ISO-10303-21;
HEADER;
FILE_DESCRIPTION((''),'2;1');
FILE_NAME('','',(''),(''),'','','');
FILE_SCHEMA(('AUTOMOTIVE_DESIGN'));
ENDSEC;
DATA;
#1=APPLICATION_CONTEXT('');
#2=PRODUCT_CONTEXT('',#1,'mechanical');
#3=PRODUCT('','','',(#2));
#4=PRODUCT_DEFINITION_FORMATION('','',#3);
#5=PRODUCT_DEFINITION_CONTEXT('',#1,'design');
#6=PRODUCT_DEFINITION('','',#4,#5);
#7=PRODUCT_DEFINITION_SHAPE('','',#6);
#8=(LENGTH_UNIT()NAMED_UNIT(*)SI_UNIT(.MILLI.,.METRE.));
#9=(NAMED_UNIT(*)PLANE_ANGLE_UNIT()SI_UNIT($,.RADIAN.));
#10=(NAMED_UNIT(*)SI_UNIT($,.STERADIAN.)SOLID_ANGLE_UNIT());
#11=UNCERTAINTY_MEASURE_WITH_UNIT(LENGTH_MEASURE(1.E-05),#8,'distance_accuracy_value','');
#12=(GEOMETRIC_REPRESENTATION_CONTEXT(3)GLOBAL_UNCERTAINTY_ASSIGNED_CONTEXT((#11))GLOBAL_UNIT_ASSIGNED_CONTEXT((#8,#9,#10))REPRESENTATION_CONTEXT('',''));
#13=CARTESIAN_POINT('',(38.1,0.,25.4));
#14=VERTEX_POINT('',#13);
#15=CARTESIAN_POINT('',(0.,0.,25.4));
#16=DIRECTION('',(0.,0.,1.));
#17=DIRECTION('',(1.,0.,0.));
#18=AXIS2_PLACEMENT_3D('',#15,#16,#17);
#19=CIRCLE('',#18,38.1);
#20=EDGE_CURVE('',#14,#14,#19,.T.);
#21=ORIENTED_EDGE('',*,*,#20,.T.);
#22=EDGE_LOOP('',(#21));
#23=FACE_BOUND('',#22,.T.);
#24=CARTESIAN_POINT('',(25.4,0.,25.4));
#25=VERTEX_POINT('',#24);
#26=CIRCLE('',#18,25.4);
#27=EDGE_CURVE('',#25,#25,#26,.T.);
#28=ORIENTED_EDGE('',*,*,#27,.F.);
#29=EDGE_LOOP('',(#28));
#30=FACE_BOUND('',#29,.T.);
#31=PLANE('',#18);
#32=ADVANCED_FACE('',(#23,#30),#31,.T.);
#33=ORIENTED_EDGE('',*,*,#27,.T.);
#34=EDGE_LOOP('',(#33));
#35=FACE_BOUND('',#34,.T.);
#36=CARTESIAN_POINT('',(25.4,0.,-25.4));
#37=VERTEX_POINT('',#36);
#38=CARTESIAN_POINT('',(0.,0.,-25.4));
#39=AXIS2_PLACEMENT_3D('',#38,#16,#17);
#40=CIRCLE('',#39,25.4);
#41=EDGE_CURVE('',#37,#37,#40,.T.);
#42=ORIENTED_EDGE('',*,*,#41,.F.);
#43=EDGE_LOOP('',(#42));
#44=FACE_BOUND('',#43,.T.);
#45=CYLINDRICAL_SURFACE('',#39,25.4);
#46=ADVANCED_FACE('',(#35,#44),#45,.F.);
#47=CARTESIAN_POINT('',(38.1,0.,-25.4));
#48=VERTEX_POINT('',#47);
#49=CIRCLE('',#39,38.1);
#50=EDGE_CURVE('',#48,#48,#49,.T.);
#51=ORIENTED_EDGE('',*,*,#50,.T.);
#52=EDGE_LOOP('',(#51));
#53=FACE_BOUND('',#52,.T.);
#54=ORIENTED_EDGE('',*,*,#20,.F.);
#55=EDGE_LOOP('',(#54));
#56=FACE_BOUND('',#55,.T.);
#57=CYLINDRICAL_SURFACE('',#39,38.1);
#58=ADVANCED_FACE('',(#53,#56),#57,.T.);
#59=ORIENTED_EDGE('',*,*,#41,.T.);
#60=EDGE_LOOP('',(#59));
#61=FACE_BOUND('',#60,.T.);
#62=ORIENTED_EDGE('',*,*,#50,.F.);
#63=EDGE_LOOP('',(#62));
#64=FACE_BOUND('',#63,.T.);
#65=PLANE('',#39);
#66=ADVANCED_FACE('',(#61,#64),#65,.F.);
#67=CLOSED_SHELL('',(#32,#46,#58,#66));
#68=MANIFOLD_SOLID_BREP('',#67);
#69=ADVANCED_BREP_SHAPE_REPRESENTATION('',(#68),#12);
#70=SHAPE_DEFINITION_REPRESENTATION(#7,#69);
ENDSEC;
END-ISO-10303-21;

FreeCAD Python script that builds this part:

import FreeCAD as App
import Part
import Sketcher

V = App.Vector
Q = App.Units.Quantity

doc = App.newDocument("Part")
body = doc.addObject("PartDesign::Body", "Body")

sketch1 = body.newObject("Sketcher::SketchObject", "Sketch")
sketch1.AttachmentSupport = (doc.getObject("XY_Plane"), [""])
sketch1.MapMode = "FlatFace"
sketch1.AttachmentOffset = App.Placement(V(0, 0, 1 * 25.4), App.Rotation())
sketch1.addGeometry(Part.Circle(V(0, 0, 0), V(0, 0, 1), 38), False)
sketch1.addGeometry(Part.Circle(V(0, 0, 0), V(0, 0, 1), 25), False)
sketch1.addConstraint(Sketcher.Constraint("Coincident", 0, 3, -1, 1))
sketch1.addConstraint(Sketcher.Constraint("Coincident", 1, 3, -1, 1))
sketch1.addConstraint(Sketcher.Constraint("Diameter", 0, Q("3 in")))
sketch1.addConstraint(Sketcher.Constraint("Diameter", 1, Q("2 in")))
pad1 = body.newObject("PartDesign::Pad", "Pad")
pad1.Profile = sketch1
pad1.Length = Q("2 in")
pad1.Reversed = True

doc.recompute()
